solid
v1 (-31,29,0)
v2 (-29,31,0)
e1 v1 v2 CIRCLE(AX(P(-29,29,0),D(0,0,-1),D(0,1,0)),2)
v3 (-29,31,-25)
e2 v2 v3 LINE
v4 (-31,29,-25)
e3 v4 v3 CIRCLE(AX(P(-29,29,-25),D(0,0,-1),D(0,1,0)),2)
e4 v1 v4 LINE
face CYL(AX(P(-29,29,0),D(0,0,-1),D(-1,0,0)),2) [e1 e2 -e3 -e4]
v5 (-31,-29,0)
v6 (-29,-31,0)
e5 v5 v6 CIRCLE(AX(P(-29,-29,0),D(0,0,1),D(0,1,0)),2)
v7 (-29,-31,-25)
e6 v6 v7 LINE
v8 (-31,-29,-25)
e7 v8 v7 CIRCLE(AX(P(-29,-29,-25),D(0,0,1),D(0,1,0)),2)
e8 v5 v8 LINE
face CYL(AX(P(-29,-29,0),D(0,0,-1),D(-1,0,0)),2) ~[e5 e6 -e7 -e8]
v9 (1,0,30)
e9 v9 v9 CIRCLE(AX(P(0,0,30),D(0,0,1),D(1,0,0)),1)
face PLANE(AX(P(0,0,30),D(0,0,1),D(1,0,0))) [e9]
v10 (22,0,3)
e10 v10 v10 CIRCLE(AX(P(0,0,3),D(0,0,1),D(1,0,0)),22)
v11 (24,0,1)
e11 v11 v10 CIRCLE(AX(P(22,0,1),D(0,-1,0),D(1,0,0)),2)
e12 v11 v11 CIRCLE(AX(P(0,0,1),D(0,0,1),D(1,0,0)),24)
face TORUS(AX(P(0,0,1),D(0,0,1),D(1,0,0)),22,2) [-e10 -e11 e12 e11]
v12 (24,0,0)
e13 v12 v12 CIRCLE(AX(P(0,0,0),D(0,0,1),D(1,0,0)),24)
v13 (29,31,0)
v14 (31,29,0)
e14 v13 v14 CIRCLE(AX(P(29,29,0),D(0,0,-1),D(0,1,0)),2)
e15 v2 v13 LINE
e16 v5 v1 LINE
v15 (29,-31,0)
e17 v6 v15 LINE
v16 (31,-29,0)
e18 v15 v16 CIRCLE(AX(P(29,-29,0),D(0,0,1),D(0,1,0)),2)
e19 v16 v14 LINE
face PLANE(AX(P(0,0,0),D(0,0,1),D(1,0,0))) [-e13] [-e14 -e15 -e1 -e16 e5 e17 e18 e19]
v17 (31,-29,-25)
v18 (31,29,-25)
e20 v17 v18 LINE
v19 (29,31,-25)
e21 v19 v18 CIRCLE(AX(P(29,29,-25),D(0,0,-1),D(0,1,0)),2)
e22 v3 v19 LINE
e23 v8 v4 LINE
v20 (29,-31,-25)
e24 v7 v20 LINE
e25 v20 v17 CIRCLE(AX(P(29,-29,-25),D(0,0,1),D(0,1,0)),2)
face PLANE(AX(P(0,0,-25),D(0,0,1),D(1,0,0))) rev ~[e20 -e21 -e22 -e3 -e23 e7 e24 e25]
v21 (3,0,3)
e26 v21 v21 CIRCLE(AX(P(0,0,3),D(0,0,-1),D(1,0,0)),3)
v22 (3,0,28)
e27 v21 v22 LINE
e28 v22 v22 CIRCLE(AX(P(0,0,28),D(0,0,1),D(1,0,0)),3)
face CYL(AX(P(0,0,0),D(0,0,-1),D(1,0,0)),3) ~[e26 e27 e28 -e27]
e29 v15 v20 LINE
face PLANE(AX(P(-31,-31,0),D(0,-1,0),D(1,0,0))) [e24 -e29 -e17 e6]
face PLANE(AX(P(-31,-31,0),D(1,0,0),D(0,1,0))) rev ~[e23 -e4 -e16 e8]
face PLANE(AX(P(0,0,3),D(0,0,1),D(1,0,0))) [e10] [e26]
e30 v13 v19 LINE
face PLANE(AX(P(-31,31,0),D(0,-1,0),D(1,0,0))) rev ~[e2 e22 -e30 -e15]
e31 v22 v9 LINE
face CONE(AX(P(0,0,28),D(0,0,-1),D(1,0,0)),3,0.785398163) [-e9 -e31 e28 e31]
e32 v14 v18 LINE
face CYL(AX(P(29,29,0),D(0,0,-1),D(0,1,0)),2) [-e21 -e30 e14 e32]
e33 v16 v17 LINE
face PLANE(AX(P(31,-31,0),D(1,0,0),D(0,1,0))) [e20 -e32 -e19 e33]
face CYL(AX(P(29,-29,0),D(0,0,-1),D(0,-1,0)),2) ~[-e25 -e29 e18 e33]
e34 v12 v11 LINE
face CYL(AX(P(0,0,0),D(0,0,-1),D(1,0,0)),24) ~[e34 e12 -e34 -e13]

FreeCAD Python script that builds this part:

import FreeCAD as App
import Part
import Sketcher
from FreeCAD import Vector
Q = App.Units.Quantity


def edges_at(feature, points):
    """Names of the edges that pass closest to the given points."""
    edges = feature.Shape.Edges
    near = lambda p: min(range(len(edges)), key=lambda i: edges[i].distToShape(Part.Vertex(*p))[0])
    return sorted({f"Edge{near(p) + 1}" for p in points})


def add_polygon(sketch, points):
    """Adds a closed chain of lines whose ends are joined by coincident constraints."""
    first, n = sketch.GeometryCount, len(points)
    for a, b in zip(points, points[1:] + points[:1]):
        sketch.addGeometry(Part.LineSegment(App.Vector(*a, 0), App.Vector(*b, 0)), False)
    for i in range(n):
        sketch.addConstraint(Sketcher.Constraint("Coincident", first + i, 2, first + (i + 1) % n, 1))

doc = App.newDocument("Part")
params = doc.addObject("Spreadsheet::Sheet", "Params")
for row, (alias, value) in enumerate([
    ("sketch1_diameter", "48 mm"),
    ("pad1_length", "3 mm"),
    ("sketch2_diameter", "6 mm"),
    ("pad2_length", "30 mm"),
    ("sketch3_width", "62 mm"),
    ("pad3_length", "25 mm"),
    ("fillet_radius", "2 mm"),
    ("fillet2_radius", "2 mm"),
    ("chamfer_size", "2 mm"),
], start=1):
    params.set(f"A{row}", alias)
    params.set(f"B{row}", "=" + value)
    params.setAlias(f"B{row}", alias)

body = doc.addObject("PartDesign::Body", "Body")

sketch1 = body.newObject("Sketcher::SketchObject", "Sketch")
sketch1.AttachmentSupport = (doc.getObject("XY_Plane"), [""])
sketch1.MapMode = "FlatFace"
sketch1.addGeometry(Part.Circle(Vector(0, 0, 0), Vector(0, 0, 1), 24), False)
sketch1.addConstraint(Sketcher.Constraint("Coincident", 0, 3, -1, 1))
sketch1.addConstraint(Sketcher.Constraint("Diameter", 0, Q("48 mm")))
sketch1.setExpression("Constraints[1]", "Params.sketch1_diameter")
pad1 = body.newObject("PartDesign::Pad", "Pad")
pad1.Profile = sketch1
pad1.setExpression("Length", "Params.pad1_length")

sketch2 = body.newObject("Sketcher::SketchObject", "Sketch001")
sketch2.AttachmentSupport = (doc.getObject("XY_Plane"), [""])
sketch2.MapMode = "FlatFace"
sketch2.addGeometry(Part.Circle(Vector(0, 0, 0), Vector(0, 0, 1), 3), False)
sketch2.addConstraint(Sketcher.Constraint("Coincident", 0, 3, -1, 1))
sketch2.addConstraint(Sketcher.Constraint("Diameter", 0, Q("6 mm")))
sketch2.setExpression("Constraints[1]", "Params.sketch2_diameter")
pad2 = body.newObject("PartDesign::Pad", "Pad001")
pad2.Profile = sketch2
pad2.setExpression("Length", "Params.pad2_length")

sketch3 = body.newObject("Sketcher::SketchObject", "Sketch002")
sketch3.AttachmentSupport = (doc.getObject("XY_Plane"), [""])
sketch3.MapMode = "FlatFace"
add_polygon(sketch3, [(-31, 31), (-31, -31), (31, -31), (31, 31)])
sketch3.addConstraint(Sketcher.Constraint("Vertical", 0))
sketch3.addConstraint(Sketcher.Constraint("Horizontal", 1))
sketch3.addConstraint(Sketcher.Constraint("Vertical", 2))
sketch3.addConstraint(Sketcher.Constraint("Horizontal", 3))
sketch3.addConstraint(Sketcher.Constraint("Symmetric", 0, 2, 2, 2, -1, 1))
sketch3.addConstraint(Sketcher.Constraint("Equal", 3, 0))
sketch3.addConstraint(Sketcher.Constraint("DistanceX", 1, 1, 1, 2, Q("62 mm")))
sketch3.setExpression("Constraints[10]", "Params.sketch3_width")
pad3 = body.newObject("PartDesign::Pad", "Pad002")
pad3.Profile = sketch3
pad3.setExpression("Length", "Params.pad3_length")
pad3.Reversed = True
doc.recompute()

fillet = body.newObject("PartDesign::Fillet", "Fillet")
fillet.Base = (pad3, edges_at(pad3, [
    (31, -31, -12.5),
    (31, 31, -12.5),
    (-31, -31, -12.5),
    (-31, 31, -12.5),
]))
fillet.setExpression("Radius", "Params.fillet_radius")
doc.recompute()

fillet2 = body.newObject("PartDesign::Fillet", "Fillet001")
fillet2.Base = (fillet, edges_at(fillet, [(-24, 0, 3)]))
fillet2.setExpression("Radius", "Params.fillet2_radius")
doc.recompute()

chamfer = body.newObject("PartDesign::Chamfer", "Chamfer")
chamfer.Base = (fillet2, edges_at(fillet2, [(-3, 0, 30)]))
chamfer.setExpression("Size", "Params.chamfer_size")

doc.recompute()
